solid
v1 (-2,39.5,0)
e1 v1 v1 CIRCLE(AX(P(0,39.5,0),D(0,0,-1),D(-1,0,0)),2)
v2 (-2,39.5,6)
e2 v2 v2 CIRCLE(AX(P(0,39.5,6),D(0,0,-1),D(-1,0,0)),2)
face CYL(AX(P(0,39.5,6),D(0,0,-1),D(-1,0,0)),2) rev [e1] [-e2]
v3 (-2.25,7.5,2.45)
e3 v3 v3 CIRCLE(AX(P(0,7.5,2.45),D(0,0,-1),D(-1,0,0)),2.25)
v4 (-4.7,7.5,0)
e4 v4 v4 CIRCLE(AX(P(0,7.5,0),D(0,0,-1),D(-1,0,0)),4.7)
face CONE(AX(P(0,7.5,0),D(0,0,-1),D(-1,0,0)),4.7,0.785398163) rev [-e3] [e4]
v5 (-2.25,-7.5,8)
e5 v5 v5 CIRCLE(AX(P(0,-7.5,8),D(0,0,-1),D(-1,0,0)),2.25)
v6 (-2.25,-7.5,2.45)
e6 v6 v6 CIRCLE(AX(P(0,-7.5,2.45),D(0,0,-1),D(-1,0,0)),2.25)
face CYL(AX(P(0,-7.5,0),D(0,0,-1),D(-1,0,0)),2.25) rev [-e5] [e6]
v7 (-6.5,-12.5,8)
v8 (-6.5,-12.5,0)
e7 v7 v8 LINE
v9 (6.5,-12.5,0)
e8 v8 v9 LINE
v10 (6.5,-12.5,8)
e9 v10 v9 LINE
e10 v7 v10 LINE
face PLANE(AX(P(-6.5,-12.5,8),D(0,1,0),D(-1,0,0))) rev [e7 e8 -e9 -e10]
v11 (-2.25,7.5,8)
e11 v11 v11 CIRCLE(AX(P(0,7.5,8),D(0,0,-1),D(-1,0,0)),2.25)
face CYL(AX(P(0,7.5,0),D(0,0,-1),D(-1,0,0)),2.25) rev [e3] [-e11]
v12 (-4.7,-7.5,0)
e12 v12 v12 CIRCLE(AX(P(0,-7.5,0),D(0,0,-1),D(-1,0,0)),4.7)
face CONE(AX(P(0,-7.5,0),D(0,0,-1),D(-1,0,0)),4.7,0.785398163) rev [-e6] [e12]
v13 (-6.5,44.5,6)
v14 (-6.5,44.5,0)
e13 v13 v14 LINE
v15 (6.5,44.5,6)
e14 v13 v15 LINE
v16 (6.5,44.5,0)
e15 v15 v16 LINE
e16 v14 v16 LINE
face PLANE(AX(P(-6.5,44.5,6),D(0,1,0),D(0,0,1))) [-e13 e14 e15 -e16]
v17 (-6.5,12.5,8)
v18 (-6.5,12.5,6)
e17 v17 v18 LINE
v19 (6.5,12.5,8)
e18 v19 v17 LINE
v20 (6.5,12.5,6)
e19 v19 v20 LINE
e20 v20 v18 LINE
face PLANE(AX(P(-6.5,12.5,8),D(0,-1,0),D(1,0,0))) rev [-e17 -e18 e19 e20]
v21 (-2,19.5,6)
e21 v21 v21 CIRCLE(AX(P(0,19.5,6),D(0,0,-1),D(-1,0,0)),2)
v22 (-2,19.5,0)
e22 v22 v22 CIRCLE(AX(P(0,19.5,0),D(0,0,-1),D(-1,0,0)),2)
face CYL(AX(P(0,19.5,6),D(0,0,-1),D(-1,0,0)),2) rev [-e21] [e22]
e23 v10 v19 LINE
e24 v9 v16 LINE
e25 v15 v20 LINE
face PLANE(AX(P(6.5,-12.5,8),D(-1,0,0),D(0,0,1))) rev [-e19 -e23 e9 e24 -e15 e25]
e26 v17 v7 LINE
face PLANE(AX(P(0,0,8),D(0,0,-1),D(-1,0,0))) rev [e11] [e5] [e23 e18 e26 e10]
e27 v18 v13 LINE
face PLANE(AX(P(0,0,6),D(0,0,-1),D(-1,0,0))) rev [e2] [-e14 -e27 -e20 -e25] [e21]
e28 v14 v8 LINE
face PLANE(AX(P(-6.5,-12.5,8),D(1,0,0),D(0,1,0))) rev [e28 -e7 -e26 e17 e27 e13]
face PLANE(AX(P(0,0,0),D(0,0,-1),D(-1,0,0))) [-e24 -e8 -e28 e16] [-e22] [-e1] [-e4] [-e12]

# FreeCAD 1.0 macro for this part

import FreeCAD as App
import Part
import Sketcher
Q = App.Units.Quantity

doc = App.newDocument("Part")
params = doc.addObject("Spreadsheet::Sheet", "Params")
for row, (alias, value) in enumerate([
    ("sketch1_diameter", "4 mm"),
    ("sketch1_width", "13 mm"),
    ("sketch1_height", "25 mm"),
    ("pad1_length", "8 mm"),
    ("sketch2_diameter", "4 mm"),
    ("sketch2_width", "13 mm"),
    ("sketch2_height", "32 mm"),
    ("pad2_length", "6 mm"),
    ("sketch3_diameter", "4.5 mm"),
    ("hole_diameter", "4.5 mm"),
    ("hole_csink_diameter", "9.4 mm"),
], start=1):
    params.set(f"A{row}", alias)
    params.set(f"B{row}", "=" + value)
    params.setAlias(f"B{row}", alias)

body = doc.addObject("PartDesign::Body", "Body")

sketch1 = body.newObject("Sketcher::SketchObject", "Sketch")
sketch1.AttachmentSupport = (doc.getObject("XY_Plane"), [""])
sketch1.MapMode = "FlatFace"
sketch1.addGeometry([
    Part.LineSegment(App.Vector(-6.5, 12.5, 0), App.Vector(-6.5, -12.5, 0)),
    Part.LineSegment(App.Vector(-6.5, -12.5, 0), App.Vector(6.5, -12.5, 0)),
    Part.LineSegment(App.Vector(6.5, -12.5, 0), App.Vector(6.5, 12.5, 0)),
    Part.LineSegment(App.Vector(6.5, 12.5, 0), App.Vector(-6.5, 12.5, 0)),
    Part.Circle(App.Vector(0, -7.5, 0), App.Vector(0, 0, 1), 2),
    Part.Circle(App.Vector(0, 7.5, 0), App.Vector(0, 0, 1), 2),
], False)
sketch1.addConstraint([
    Sketcher.Constraint("Coincident", 0, 2, 1, 1),
    Sketcher.Constraint("Coincident", 1, 2, 2, 1),
    Sketcher.Constraint("Coincident", 2, 2, 3, 1),
    Sketcher.Constraint("Coincident", 3, 2, 0, 1),
    Sketcher.Constraint("Vertical", 0),
    Sketcher.Constraint("Horizontal", 1),
    Sketcher.Constraint("Vertical", 2),
    Sketcher.Constraint("Horizontal", 3),
    Sketcher.Constraint("Equal", 4, 5),
    Sketcher.Constraint("Symmetric", 4, 3, 5, 3, -1, 1),
    Sketcher.Constraint("Symmetric", 0, 2, 2, 2, -1, 1),
    Sketcher.Constraint("PointOnObject", 4, 3, -2),
    Sketcher.Constraint("Diameter", 4, Q("4 mm")),
    Sketcher.Constraint("DistanceX", 1, 1, 1, 2, Q("13 mm")),
    Sketcher.Constraint("DistanceY", 0, 2, 0, 1, Q("25 mm")),
    Sketcher.Constraint("DistanceY", 4, 3, 5, 3, Q("15 mm")),
])
sketch1.setExpression("Constraints[12]", "Params.sketch1_diameter")
sketch1.setExpression("Constraints[13]", "Params.sketch1_width")
sketch1.setExpression("Constraints[14]", "Params.sketch1_height")
pad1 = body.newObject("PartDesign::Pad", "Pad")
pad1.Profile = sketch1
pad1.setExpression("Length", "Params.pad1_length")

sketch2 = body.newObject("Sketcher::SketchObject", "Sketch001")
sketch2.AttachmentSupport = (doc.getObject("XY_Plane"), [""])
sketch2.MapMode = "FlatFace"
sketch2.addGeometry([
    Part.LineSegment(App.Vector(6.5, 44.5, 0), App.Vector(6.5, 12.5, 0)),
    Part.LineSegment(App.Vector(6.5, 12.5, 0), App.Vector(-6.5, 12.5, 0)),
    Part.LineSegment(App.Vector(-6.5, 12.5, 0), App.Vector(-6.5, 44.5, 0)),
    Part.LineSegment(App.Vector(-6.5, 44.5, 0), App.Vector(6.5, 44.5, 0)),
    Part.Circle(App.Vector(0, 19.5, 0), App.Vector(0, 0, 1), 2),
    Part.Circle(App.Vector(0, 39.5, 0), App.Vector(0, 0, 1), 2),
], False)
sketch2.addConstraint([
    Sketcher.Constraint("Coincident", 0, 2, 1, 1),
    Sketcher.Constraint("Coincident", 1, 2, 2, 1),
    Sketcher.Constraint("Coincident", 2, 2, 3, 1),
    Sketcher.Constraint("Coincident", 3, 2, 0, 1),
    Sketcher.Constraint("Vertical", 0),
    Sketcher.Constraint("Horizontal", 1),
    Sketcher.Constraint("Vertical", 2),
    Sketcher.Constraint("Horizontal", 3),
    Sketcher.Constraint("Equal", 4, 5),
    Sketcher.Constraint("PointOnObject", 4, 3, -2),
    Sketcher.Constraint("PointOnObject", 5, 3, -2),
    Sketcher.Constraint("Diameter", 4, Q("4 mm")),
    Sketcher.Constraint("DistanceX", 1, 2, 1, 1, Q("13 mm")),
    Sketcher.Constraint("DistanceY", 0, 2, 0, 1, Q("32 mm")),
    Sketcher.Constraint("DistanceY", 4, 3, 5, 3, Q("20 mm")),
    Sketcher.Constraint("DistanceY", 0, 2, 4, 3, Q("7 mm")),
    Sketcher.Constraint("DistanceY", -1, 1, 4, 3, Q("19.5 mm")),
    Sketcher.Constraint("DistanceX", -1, 1, 0, 2, Q("6.5 mm")),
])
sketch2.setExpression("Constraints[11]", "Params.sketch2_diameter")
sketch2.setExpression("Constraints[12]", "Params.sketch2_width")
sketch2.setExpression("Constraints[13]", "Params.sketch2_height")
pad2 = body.newObject("PartDesign::Pad", "Pad001")
pad2.Profile = sketch2
pad2.setExpression("Length", "Params.pad2_length")

sketch3 = body.newObject("Sketcher::SketchObject", "Sketch002")
sketch3.AttachmentSupport = (doc.getObject("XY_Plane"), [""])
sketch3.MapMode = "FlatFace"
sketch3.addGeometry([
    Part.Circle(App.Vector(0, -7.5, 0), App.Vector(0, 0, 1), 2.2),
    Part.Circle(App.Vector(0, 7.5, 0), App.Vector(0, 0, 1), 2.2),
], False)
sketch3.addConstraint([
    Sketcher.Constraint("Equal", 0, 1),
    Sketcher.Constraint("Symmetric", 0, 3, 1, 3, -1, 1),
    Sketcher.Constraint("PointOnObject", 0, 3, -2),
    Sketcher.Constraint("Diameter", 0, Q("4.5 mm")),
    Sketcher.Constraint("DistanceY", 0, 3, 1, 3, Q("15 mm")),
])
sketch3.setExpression("Constraints[3]", "Params.sketch3_diameter")
doc.recompute()
hole = body.newObject("PartDesign::Hole", "Hole")
hole.Profile = sketch3
hole.ThreadType = "None"
hole.setExpression("Diameter", "Params.hole_diameter")
hole.DepthType = "ThroughAll"
hole.HoleCutType = "Countersink"
hole.setExpression("HoleCutDiameter", "Params.hole_csink_diameter")
hole.HoleCutCountersinkAngle = 90
hole.Reversed = True

doc.recompute()
